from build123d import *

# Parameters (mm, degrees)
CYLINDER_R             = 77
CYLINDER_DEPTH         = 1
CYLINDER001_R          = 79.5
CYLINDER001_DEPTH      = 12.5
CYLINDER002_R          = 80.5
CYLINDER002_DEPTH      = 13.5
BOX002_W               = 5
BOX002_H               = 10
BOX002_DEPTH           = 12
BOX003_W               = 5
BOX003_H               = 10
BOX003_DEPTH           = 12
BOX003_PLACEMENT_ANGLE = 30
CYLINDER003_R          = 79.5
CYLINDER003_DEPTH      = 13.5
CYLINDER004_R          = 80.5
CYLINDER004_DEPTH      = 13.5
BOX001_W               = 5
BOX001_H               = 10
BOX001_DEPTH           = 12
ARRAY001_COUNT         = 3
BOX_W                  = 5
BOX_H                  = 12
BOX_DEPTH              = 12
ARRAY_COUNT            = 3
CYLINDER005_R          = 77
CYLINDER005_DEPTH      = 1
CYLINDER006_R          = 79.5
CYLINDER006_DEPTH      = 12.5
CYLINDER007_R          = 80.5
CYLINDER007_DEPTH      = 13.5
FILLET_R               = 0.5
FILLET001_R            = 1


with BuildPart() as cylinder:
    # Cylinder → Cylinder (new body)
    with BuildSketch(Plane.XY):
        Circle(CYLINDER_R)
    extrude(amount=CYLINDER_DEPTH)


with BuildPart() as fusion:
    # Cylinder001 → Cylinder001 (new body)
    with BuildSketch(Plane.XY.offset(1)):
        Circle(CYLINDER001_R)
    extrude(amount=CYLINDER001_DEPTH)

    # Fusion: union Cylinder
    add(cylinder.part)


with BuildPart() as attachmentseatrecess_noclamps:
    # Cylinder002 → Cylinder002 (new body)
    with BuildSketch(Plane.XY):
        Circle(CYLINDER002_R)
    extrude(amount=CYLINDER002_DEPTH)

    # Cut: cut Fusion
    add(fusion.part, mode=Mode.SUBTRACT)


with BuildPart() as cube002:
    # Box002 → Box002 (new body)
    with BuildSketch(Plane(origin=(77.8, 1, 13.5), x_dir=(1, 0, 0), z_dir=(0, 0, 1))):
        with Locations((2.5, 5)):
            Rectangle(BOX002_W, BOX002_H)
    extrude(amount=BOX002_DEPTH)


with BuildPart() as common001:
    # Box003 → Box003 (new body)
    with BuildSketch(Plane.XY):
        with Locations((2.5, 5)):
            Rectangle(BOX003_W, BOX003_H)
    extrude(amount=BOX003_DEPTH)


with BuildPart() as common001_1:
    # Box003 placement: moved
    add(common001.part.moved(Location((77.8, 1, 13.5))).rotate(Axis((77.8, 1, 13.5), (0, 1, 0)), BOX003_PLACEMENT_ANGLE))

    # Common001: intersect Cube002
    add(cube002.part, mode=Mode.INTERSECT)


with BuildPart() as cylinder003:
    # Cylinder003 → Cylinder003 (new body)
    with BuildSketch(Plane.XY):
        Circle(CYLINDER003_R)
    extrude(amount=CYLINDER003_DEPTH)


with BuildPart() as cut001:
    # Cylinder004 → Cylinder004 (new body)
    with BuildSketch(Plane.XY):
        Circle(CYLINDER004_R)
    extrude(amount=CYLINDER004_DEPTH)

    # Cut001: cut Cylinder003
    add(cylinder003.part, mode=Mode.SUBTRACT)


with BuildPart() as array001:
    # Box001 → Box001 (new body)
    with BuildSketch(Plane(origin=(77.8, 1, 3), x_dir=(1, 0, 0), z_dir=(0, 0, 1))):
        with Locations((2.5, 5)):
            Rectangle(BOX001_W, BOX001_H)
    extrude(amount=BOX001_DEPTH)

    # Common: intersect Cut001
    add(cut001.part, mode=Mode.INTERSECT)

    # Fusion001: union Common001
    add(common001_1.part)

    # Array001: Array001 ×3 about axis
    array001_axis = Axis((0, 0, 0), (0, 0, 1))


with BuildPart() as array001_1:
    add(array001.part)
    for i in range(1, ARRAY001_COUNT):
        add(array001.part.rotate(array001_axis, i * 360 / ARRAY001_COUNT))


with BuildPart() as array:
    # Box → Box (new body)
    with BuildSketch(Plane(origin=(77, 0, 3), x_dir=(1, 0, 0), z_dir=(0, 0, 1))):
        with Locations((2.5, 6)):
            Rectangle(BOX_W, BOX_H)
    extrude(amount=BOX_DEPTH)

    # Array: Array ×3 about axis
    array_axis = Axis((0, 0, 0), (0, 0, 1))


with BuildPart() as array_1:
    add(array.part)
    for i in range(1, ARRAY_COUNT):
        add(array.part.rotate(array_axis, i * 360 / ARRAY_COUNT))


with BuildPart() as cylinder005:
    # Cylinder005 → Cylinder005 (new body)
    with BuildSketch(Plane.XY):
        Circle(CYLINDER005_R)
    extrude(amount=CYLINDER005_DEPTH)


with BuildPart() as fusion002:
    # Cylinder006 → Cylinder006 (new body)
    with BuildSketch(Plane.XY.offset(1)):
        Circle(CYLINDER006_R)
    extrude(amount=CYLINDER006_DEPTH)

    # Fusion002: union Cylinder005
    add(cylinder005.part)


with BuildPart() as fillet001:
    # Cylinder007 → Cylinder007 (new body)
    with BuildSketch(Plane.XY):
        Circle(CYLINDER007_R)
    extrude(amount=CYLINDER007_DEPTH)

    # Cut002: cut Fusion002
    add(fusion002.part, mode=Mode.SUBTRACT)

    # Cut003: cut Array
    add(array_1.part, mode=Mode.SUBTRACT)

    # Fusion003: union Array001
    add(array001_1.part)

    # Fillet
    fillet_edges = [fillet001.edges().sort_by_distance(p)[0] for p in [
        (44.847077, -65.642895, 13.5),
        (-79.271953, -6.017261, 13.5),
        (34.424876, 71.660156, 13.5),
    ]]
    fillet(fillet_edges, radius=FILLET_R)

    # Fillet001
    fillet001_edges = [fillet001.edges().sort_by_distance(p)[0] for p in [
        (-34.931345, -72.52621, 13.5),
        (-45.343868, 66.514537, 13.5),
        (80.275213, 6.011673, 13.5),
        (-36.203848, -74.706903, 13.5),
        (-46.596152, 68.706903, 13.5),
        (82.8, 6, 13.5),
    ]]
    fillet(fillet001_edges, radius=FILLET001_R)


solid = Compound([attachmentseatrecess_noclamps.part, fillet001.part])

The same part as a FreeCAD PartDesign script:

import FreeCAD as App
import Part
import Sketcher

V = App.Vector
Q = App.Units.Quantity


def edges_at(feature, points):
    """Names of the edges that pass closest to the given points."""
    edges = feature.Shape.Edges
    near = lambda p: min(range(len(edges)), key=lambda i: edges[i].distToShape(Part.Vertex(*p))[0])
    return sorted({f"Edge{near(p) + 1}" for p in points})


def add_polygon(sketch, points):
    """Adds a closed chain of lines whose ends are joined by coincident constraints."""
    first, n = sketch.GeometryCount, len(points)
    for a, b in zip(points, points[1:] + points[:1]):
        sketch.addGeometry(Part.LineSegment(App.Vector(*a, 0), App.Vector(*b, 0)), False)
    for i in range(n):
        sketch.addConstraint(Sketcher.Constraint("Coincident", first + i, 2, first + (i + 1) % n, 1))

doc = App.newDocument("Part")
body = doc.addObject("PartDesign::Body", "Body")

# Sketch on XY plane
sketch1 = body.newObject("Sketcher::SketchObject", "Sketch")
sketch1.AttachmentSupport = (doc.getObject("XY_Plane"), [""])
sketch1.MapMode = "FlatFace"
sketch1.addGeometry(Part.Circle(V(0, 0, 0), V(0, 0, 1), 77), False)
sketch1.addConstraint([
    Sketcher.Constraint("Coincident", 0, 3, -1, 1),
    Sketcher.Constraint("Diameter", 0, Q("154 mm")),
])
pad1 = body.newObject("PartDesign::Pad", "Pad")
pad1.Profile = sketch1
pad1.Length = 1
body2 = doc.addObject("PartDesign::Body", "Body001")

# Sketch on XY plane
sketch2 = body2.newObject("Sketcher::SketchObject", "Sketch001")
sketch2.AttachmentSupport = (doc.getObject("XY_Plane001"), [""])
sketch2.MapMode = "FlatFace"
sketch2.AttachmentOffset = App.Placement(V(0, 0, 1), App.Rotation())
sketch2.addGeometry(Part.Circle(V(0, 0, 0), V(0, 0, 1), 80), False)
sketch2.addConstraint([
    Sketcher.Constraint("Coincident", 0, 3, -1, 1),
    Sketcher.Constraint("Diameter", 0, Q("159 mm")),
])
pad2 = body2.newObject("PartDesign::Pad", "Pad001")
pad2.Profile = sketch2
pad2.Length = 12.5
doc.recompute()

boolean = body2.newObject("PartDesign::Boolean", "Boolean")
boolean.Type = "Fuse"
boolean.addObjects([body])
body3 = doc.addObject("PartDesign::Body", "Body002")

# Sketch on XY plane
sketch3 = body3.newObject("Sketcher::SketchObject", "Sketch002")
sketch3.AttachmentSupport = (doc.getObject("XY_Plane002"), [""])
sketch3.MapMode = "FlatFace"
sketch3.addGeometry(Part.Circle(V(0, 0, 0), V(0, 0, 1), 80), False)
sketch3.addConstraint([
    Sketcher.Constraint("Coincident", 0, 3, -1, 1),
    Sketcher.Constraint("Diameter", 0, Q("161 mm")),
])
pad3 = body3.newObject("PartDesign::Pad", "Pad002")
pad3.Profile = sketch3
pad3.Length = 13.5
doc.recompute()

boolean2 = body3.newObject("PartDesign::Boolean", "Boolean001")
boolean2.Type = "Cut"
boolean2.addObjects([body2])
body4 = doc.addObject("PartDesign::Body", "Body003")

# Sketch on XY plane
sketch4 = body4.newObject("Sketcher::SketchObject", "Sketch003")
sketch4.AttachmentSupport = (doc.getObject("XY_Plane003"), [""])
sketch4.MapMode = "FlatFace"
sketch4.AttachmentOffset = App.Placement(V(0, 0, 13.5), App.Rotation())
add_polygon(sketch4, [(78, 11), (78, 1), (83, 1), (83, 11)])  # lines 0-3
sketch4.addConstraint([
    Sketcher.Constraint("Vertical", 0),
    Sketcher.Constraint("Horizontal", 1),
    Sketcher.Constraint("Vertical", 2),
    Sketcher.Constraint("Horizontal", 3),
    Sketcher.Constraint("DistanceX", 1, 1, 1, 2, Q("5 mm")),
    Sketcher.Constraint("DistanceY", 0, 2, 0, 1, Q("10 mm")),
    Sketcher.Constraint("DistanceY", -1, 1, 0, 2, Q("1 mm")),
    Sketcher.Constraint("DistanceX", -1, 1, 0, 2, Q("77.8 mm")),
])
pad4 = body4.newObject("PartDesign::Pad", "Pad003")
pad4.Profile = sketch4
pad4.Length = 12
body5 = doc.addObject("PartDesign::Body", "Body004")

# Sketch on XY plane
sketch5 = body5.newObject("Sketcher::SketchObject", "Sketch004")
sketch5.AttachmentSupport = (doc.getObject("XY_Plane004"), [""])
sketch5.MapMode = "FlatFace"
add_polygon(sketch5, [(0, 10), (0, 0), (5, 0), (5, 10)])  # lines 0-3
sketch5.addConstraint([
    Sketcher.Constraint("Vertical", 0),
    Sketcher.Constraint("Horizontal", 1),
    Sketcher.Constraint("Vertical", 2),
    Sketcher.Constraint("Horizontal", 3),
    Sketcher.Constraint("Coincident", 0, 2, -1, 1),
    Sketcher.Constraint("DistanceX", 1, 1, 1, 2, Q("5 mm")),
    Sketcher.Constraint("DistanceY", 0, 2, 0, 1, Q("10 mm")),
])
pad5 = body5.newObject("PartDesign::Pad", "Pad004")
pad5.Profile = sketch5
pad5.Length = 12
body6 = doc.addObject("PartDesign::Body", "Body005")
doc.recompute()

body5.Placement = App.Placement(V(77.8, 1, 13.5), App.Rotation(V(0, 1, 0), 30))
boolean3 = body6.newObject("PartDesign::Boolean", "Boolean002")
boolean3.Type = "Fuse"
boolean3.addObjects([body5])
doc.recompute()

boolean4 = body6.newObject("PartDesign::Boolean", "Boolean003")
boolean4.Type = "Common"
boolean4.addObjects([body4])
body7 = doc.addObject("PartDesign::Body", "Body006")

# Sketch on XY plane
sketch6 = body7.newObject("Sketcher::SketchObject", "Sketch005")
sketch6.AttachmentSupport = (doc.getObject("XY_Plane006"), [""])
sketch6.MapMode = "FlatFace"
sketch6.addGeometry(Part.Circle(V(0, 0, 0), V(0, 0, 1), 80), False)
sketch6.addConstraint([
    Sketcher.Constraint("Coincident", 0, 3, -1, 1),
    Sketcher.Constraint("Diameter", 0, Q("159 mm")),
])
pad6 = body7.newObject("PartDesign::Pad", "Pad005")
pad6.Profile = sketch6
pad6.Length = 13.5
body8 = doc.addObject("PartDesign::Body", "Body007")

# Sketch on XY plane
sketch7 = body8.newObject("Sketcher::SketchObject", "Sketch006")
sketch7.AttachmentSupport = (doc.getObject("XY_Plane007"), [""])
sketch7.MapMode = "FlatFace"
sketch7.addGeometry(Part.Circle(V(0, 0, 0), V(0, 0, 1), 80), False)
sketch7.addConstraint([
    Sketcher.Constraint("Coincident", 0, 3, -1, 1),
    Sketcher.Constraint("Diameter", 0, Q("161 mm")),
])
pad7 = body8.newObject("PartDesign::Pad", "Pad006")
pad7.Profile = sketch7
pad7.Length = 13.5
doc.recompute()

boolean5 = body8.newObject("PartDesign::Boolean", "Boolean004")
boolean5.Type = "Cut"
boolean5.addObjects([body7])
body9 = doc.addObject("PartDesign::Body", "Body008")

# Sketch on XY plane
sketch8 = body9.newObject("Sketcher::SketchObject", "Sketch007")
sketch8.AttachmentSupport = (doc.getObject("XY_Plane008"), [""])
sketch8.MapMode = "FlatFace"
sketch8.AttachmentOffset = App.Placement(V(0, 0, 3), App.Rotation())
add_polygon(sketch8, [(78, 11), (78, 1), (83, 1), (83, 11)])  # lines 0-3
sketch8.addConstraint([
    Sketcher.Constraint("Vertical", 0),
    Sketcher.Constraint("Horizontal", 1),
    Sketcher.Constraint("Vertical", 2),
    Sketcher.Constraint("Horizontal", 3),
    Sketcher.Constraint("DistanceX", 1, 1, 1, 2, Q("5 mm")),
    Sketcher.Constraint("DistanceY", 0, 2, 0, 1, Q("10 mm")),
    Sketcher.Constraint("DistanceY", -1, 1, 0, 2, Q("1 mm")),
    Sketcher.Constraint("DistanceX", -1, 1, 0, 2, Q("77.8 mm")),
])
pad8 = body9.newObject("PartDesign::Pad", "Pad007")
pad8.Profile = sketch8
pad8.Length = 12
doc.recompute()

boolean6 = body9.newObject("PartDesign::Boolean", "Boolean005")
boolean6.Type = "Common"
boolean6.addObjects([body8])
doc.recompute()

boolean7 = body9.newObject("PartDesign::Boolean", "Boolean006")
boolean7.Type = "Fuse"
boolean7.addObjects([body6])
body10 = doc.addObject("PartDesign::Body", "Body009")
body10.AllowCompound = True
doc.recompute()

body10.BaseFeature = body9
doc.recompute()

body11 = doc.addObject("PartDesign::Body", "Body010")
body11.BaseFeature = body9
body11.Placement = App.Placement(V(0, 0, 0), App.Rotation(V(0, 0, 1), 120))
boolean8 = body10.newObject("PartDesign::Boolean", "Boolean007")
boolean8.Type = "Fuse"
boolean8.addObjects([body11])
doc.recompute()

body9.Placement = App.Placement(V(0, 0, 0), App.Rotation(V(0, 0, 1), 240))
boolean9 = body10.newObject("PartDesign::Boolean", "Boolean008")
boolean9.Type = "Fuse"
boolean9.addObjects([body9])
body12 = doc.addObject("PartDesign::Body", "Body011")

# Sketch on XY plane
sketch9 = body12.newObject("Sketcher::SketchObject", "Sketch008")
sketch9.AttachmentSupport = (doc.getObject("XY_Plane011"), [""])
sketch9.MapMode = "FlatFace"
sketch9.AttachmentOffset = App.Placement(V(0, 0, 3), App.Rotation())
add_polygon(sketch9, [(77, 12), (77, 0), (82, 0), (82, 12)])  # lines 0-3
sketch9.addConstraint([
    Sketcher.Constraint("Vertical", 0),
    Sketcher.Constraint("Horizontal", 1),
    Sketcher.Constraint("Vertical", 2),
    Sketcher.Constraint("Horizontal", 3),
    Sketcher.Constraint("PointOnObject", 0, 2, -1),
    Sketcher.Constraint("DistanceX", 1, 1, 1, 2, Q("5 mm")),
    Sketcher.Constraint("DistanceY", 0, 2, 0, 1, Q("12 mm")),
    Sketcher.Constraint("DistanceX", -1, 1, 0, 2, Q("77 mm")),
])
pad9 = body12.newObject("PartDesign::Pad", "Pad008")
pad9.Profile = sketch9
pad9.Length = 12
body13 = doc.addObject("PartDesign::Body", "Body012")
body13.AllowCompound = True
doc.recompute()

body13.BaseFeature = body12
doc.recompute()

body14 = doc.addObject("PartDesign::Body", "Body013")
body14.BaseFeature = body12
body14.Placement = App.Placement(V(0, 0, 0), App.Rotation(V(0, 0, 1), 120))
boolean10 = body13.newObject("PartDesign::Boolean", "Boolean009")
boolean10.Type = "Fuse"
boolean10.addObjects([body14])
doc.recompute()

body12.Placement = App.Placement(V(0, 0, 0), App.Rotation(V(0, 0, 1), 240))
boolean11 = body13.newObject("PartDesign::Boolean", "Boolean010")
boolean11.Type = "Fuse"
boolean11.addObjects([body12])
body15 = doc.addObject("PartDesign::Body", "Body014")

# Sketch on XY plane
sketch10 = body15.newObject("Sketcher::SketchObject", "Sketch009")
sketch10.AttachmentSupport = (doc.getObject("XY_Plane014"), [""])
sketch10.MapMode = "FlatFace"
sketch10.addGeometry(Part.Circle(V(0, 0, 0), V(0, 0, 1), 77), False)
sketch10.addConstraint([
    Sketcher.Constraint("Coincident", 0, 3, -1, 1),
    Sketcher.Constraint("Diameter", 0, Q("154 mm")),
])
pad10 = body15.newObject("PartDesign::Pad", "Pad009")
pad10.Profile = sketch10
pad10.Length = 1
body16 = doc.addObject("PartDesign::Body", "Body015")

# Sketch on XY plane
sketch11 = body16.newObject("Sketcher::SketchObject", "Sketch010")
sketch11.AttachmentSupport = (doc.getObject("XY_Plane015"), [""])
sketch11.MapMode = "FlatFace"
sketch11.AttachmentOffset = App.Placement(V(0, 0, 1), App.Rotation())
sketch11.addGeometry(Part.Circle(V(0, 0, 0), V(0, 0, 1), 80), False)
sketch11.addConstraint([
    Sketcher.Constraint("Coincident", 0, 3, -1, 1),
    Sketcher.Constraint("Diameter", 0, Q("159 mm")),
])
pad11 = body16.newObject("PartDesign::Pad", "Pad010")
pad11.Profile = sketch11
pad11.Length = 12.5
doc.recompute()

boolean12 = body16.newObject("PartDesign::Boolean", "Boolean011")
boolean12.Type = "Fuse"
boolean12.addObjects([body15])
body17 = doc.addObject("PartDesign::Body", "Body016")

# Sketch on XY plane
sketch12 = body17.newObject("Sketcher::SketchObject", "Sketch011")
sketch12.AttachmentSupport = (doc.getObject("XY_Plane016"), [""])
sketch12.MapMode = "FlatFace"
sketch12.addGeometry(Part.Circle(V(0, 0, 0), V(0, 0, 1), 80), False)
sketch12.addConstraint([
    Sketcher.Constraint("Coincident", 0, 3, -1, 1),
    Sketcher.Constraint("Diameter", 0, Q("161 mm")),
])
pad12 = body17.newObject("PartDesign::Pad", "Pad011")
pad12.Profile = sketch12
pad12.Length = 13.5
doc.recompute()

boolean13 = body17.newObject("PartDesign::Boolean", "Boolean012")
boolean13.Type = "Cut"
boolean13.addObjects([body16])
doc.recompute()

boolean14 = body17.newObject("PartDesign::Boolean", "Boolean013")
boolean14.Type = "Cut"
boolean14.addObjects([body13])
doc.recompute()

boolean15 = body17.newObject("PartDesign::Boolean", "Boolean014")
boolean15.Type = "Fuse"
boolean15.addObjects([body10])
doc.recompute()

fillet = body17.newObject("PartDesign::Fillet", "Fillet")
fillet.Base = (boolean15, edges_at(boolean15, [(44.847, -65.643, 13.5), (-79.272, -6.017, 13.5), (34.425, 71.66, 13.5)]))
fillet.Radius = 0.5
doc.recompute()

fillet2 = body17.newObject("PartDesign::Fillet", "Fillet001")
fillet2.Base = (fillet, edges_at(fillet, [
    (-34.931, -72.526, 13.5),
    (-45.344, 66.515, 13.5),
    (80.275, 6.012, 13.5),
    (-36.204, -74.707, 13.5),
    (-46.596, 68.707, 13.5),
    (82.8, 6, 13.5),
]))
fillet2.Radius = 1

doc.recompute()
